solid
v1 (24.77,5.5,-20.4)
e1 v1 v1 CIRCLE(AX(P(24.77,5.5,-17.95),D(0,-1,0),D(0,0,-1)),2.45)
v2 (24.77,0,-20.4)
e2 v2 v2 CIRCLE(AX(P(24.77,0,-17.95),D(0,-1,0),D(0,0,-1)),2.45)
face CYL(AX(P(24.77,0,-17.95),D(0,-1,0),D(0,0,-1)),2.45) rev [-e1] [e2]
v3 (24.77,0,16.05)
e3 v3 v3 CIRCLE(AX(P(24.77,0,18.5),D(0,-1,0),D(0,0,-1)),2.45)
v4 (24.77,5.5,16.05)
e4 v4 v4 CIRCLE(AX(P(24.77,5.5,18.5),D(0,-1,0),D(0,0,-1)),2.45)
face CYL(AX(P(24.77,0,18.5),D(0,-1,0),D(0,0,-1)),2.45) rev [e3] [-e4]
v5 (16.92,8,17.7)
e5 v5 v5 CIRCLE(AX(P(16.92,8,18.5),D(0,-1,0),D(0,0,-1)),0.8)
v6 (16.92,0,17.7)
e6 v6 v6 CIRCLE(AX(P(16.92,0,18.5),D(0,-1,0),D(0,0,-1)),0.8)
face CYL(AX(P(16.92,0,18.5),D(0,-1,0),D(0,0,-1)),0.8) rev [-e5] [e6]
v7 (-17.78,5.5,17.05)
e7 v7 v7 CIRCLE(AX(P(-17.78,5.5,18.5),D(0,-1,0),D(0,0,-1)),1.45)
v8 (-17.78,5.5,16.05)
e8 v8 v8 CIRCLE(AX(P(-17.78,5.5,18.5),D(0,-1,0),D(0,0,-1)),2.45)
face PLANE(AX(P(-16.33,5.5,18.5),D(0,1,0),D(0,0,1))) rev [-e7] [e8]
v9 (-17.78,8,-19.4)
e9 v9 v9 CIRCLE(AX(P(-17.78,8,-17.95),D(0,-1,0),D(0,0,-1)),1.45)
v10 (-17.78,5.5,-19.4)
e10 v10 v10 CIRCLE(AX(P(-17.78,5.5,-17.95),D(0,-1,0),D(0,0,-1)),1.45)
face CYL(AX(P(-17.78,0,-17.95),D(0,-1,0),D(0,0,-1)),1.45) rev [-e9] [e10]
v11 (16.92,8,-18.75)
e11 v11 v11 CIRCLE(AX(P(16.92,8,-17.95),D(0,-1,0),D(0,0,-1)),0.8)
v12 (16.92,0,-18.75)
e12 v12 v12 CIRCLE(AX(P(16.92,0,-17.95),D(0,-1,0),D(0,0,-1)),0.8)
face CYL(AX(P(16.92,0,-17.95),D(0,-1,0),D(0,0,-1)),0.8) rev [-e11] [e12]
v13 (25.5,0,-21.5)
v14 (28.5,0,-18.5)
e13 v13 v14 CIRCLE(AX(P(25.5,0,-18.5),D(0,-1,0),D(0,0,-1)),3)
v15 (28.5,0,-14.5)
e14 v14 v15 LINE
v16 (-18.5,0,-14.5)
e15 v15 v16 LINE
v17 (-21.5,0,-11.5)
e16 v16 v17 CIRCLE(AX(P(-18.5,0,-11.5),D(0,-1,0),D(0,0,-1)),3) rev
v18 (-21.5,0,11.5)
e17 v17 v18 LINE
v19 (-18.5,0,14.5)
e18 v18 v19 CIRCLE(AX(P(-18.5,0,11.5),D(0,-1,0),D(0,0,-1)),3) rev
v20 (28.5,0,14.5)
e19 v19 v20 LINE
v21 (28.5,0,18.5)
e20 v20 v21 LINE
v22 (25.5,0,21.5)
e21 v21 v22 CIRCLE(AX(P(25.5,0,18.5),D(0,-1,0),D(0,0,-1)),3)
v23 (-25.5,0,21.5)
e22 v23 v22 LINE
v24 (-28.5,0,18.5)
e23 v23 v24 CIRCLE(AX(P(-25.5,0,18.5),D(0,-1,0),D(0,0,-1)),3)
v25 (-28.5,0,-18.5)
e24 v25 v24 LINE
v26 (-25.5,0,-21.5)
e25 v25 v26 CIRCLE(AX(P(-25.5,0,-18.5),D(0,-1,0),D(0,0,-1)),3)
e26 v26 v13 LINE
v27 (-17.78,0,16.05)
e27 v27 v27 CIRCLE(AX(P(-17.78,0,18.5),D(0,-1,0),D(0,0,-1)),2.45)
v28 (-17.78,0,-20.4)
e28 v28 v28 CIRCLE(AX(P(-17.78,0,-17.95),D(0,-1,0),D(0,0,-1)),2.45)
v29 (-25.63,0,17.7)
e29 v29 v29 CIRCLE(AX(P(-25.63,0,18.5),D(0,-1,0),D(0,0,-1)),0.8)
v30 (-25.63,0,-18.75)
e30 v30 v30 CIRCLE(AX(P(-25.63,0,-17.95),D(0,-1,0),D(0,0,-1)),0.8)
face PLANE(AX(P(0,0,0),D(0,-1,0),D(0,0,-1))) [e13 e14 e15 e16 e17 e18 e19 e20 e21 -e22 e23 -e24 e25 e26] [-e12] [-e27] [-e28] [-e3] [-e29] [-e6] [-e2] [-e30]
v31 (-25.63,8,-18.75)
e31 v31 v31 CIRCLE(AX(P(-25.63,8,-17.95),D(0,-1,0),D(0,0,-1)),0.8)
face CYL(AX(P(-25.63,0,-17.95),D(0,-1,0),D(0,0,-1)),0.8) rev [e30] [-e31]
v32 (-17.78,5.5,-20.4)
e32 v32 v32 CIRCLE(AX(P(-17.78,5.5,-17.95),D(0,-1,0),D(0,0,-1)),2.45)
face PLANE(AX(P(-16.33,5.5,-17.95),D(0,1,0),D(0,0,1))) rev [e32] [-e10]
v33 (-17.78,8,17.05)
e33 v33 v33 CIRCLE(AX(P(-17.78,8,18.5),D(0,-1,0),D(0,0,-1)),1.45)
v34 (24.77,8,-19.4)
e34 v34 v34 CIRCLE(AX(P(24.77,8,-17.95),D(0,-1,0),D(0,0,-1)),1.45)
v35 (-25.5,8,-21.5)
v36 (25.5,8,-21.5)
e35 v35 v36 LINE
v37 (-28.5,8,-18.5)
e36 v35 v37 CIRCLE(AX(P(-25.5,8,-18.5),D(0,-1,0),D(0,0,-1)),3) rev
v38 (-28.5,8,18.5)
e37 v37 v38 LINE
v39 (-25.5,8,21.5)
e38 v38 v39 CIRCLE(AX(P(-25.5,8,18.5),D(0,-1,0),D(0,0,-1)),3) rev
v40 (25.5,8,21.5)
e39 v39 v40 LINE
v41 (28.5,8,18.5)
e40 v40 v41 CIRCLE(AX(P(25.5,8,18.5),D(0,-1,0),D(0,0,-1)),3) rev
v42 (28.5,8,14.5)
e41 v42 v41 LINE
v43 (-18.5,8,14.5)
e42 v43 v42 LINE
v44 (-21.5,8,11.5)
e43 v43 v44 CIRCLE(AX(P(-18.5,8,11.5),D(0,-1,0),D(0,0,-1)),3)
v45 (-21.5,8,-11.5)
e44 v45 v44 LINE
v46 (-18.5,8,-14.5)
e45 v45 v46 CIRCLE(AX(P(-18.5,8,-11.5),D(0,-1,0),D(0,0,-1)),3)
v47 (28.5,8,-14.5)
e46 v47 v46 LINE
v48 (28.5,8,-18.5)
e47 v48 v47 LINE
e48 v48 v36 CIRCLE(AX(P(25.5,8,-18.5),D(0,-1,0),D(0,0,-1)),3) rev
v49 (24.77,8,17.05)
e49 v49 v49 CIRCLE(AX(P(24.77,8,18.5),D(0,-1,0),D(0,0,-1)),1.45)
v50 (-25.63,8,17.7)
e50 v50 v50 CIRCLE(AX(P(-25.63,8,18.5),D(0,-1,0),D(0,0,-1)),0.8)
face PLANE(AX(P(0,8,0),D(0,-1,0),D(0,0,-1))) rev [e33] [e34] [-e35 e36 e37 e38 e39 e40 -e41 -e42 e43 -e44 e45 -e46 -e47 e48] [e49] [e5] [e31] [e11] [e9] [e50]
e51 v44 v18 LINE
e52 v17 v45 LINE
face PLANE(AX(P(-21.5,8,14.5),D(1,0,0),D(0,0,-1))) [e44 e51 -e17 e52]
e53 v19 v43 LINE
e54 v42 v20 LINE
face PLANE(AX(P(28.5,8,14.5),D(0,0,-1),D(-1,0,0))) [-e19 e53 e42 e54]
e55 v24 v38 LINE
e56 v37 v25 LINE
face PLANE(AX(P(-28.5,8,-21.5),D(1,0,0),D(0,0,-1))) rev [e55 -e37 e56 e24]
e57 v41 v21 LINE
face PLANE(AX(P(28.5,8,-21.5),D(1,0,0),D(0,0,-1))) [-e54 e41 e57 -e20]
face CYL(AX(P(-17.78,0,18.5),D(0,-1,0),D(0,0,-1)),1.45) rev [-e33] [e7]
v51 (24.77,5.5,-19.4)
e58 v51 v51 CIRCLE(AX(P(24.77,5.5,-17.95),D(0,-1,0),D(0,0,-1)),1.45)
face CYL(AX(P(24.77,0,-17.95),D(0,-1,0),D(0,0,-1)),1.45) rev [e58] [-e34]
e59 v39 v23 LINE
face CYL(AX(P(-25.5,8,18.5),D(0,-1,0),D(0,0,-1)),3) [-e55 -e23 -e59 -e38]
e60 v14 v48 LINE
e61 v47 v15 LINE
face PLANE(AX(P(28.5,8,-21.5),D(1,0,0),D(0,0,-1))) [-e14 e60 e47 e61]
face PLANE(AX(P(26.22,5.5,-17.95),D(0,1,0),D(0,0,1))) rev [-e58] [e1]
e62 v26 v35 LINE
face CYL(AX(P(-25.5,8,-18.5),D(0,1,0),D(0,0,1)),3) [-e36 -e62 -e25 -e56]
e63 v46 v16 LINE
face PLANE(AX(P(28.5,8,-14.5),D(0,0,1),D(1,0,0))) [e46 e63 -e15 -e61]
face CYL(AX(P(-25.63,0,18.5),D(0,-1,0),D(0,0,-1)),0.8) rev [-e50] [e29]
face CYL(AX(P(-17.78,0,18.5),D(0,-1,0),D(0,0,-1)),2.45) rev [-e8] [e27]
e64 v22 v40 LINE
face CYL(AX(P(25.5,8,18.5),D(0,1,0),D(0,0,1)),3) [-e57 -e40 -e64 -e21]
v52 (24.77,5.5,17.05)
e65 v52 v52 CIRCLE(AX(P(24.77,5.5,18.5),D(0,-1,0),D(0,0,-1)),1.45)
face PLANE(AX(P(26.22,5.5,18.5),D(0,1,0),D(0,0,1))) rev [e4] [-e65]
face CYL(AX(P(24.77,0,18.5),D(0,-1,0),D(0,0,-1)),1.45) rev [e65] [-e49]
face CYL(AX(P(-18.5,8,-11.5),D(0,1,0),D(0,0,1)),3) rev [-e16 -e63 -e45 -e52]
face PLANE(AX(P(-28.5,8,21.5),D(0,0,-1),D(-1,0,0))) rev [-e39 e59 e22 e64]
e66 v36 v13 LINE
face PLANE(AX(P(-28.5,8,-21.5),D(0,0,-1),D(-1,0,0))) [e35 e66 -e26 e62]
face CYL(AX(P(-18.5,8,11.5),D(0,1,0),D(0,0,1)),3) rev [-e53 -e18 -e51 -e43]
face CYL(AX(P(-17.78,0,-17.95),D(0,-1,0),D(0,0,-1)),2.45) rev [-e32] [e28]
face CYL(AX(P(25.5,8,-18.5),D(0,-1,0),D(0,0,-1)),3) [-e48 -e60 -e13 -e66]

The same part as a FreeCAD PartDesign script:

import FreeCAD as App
import Part
import Sketcher
from FreeCAD import Vector
Q = App.Units.Quantity


def edges_at(feature, points):
    """Names of the edges that pass closest to the given points."""
    edges = feature.Shape.Edges
    near = lambda p: min(range(len(edges)), key=lambda i: edges[i].distToShape(Part.Vertex(*p))[0])
    return sorted({f"Edge{near(p) + 1}" for p in points})


def add_polygon(sketch, points):
    """Adds a closed chain of lines whose ends are joined by coincident constraints."""
    first, n = sketch.GeometryCount, len(points)
    for a, b in zip(points, points[1:] + points[:1]):
        sketch.addGeometry(Part.LineSegment(App.Vector(*a, 0), App.Vector(*b, 0)), False)
    for i in range(n):
        sketch.addConstraint(Sketcher.Constraint("Coincident", first + i, 2, first + (i + 1) % n, 1))

doc = App.newDocument("Part")
params = doc.addObject("Spreadsheet::Sheet", "Params")
for row, (alias, value) in enumerate([
    ("sketch1_width", "57 mm"),
    ("sketch1_height", "43 mm"),
    ("pad1_length", "8 mm"),
    ("sketch2_width", "50 mm"),
    ("sketch2_height", "29 mm"),
    ("pocket1_length", "8 mm"),
    ("fillet_radius", "3 mm"),
    ("sketch3_diameter", "1.6 mm"),
    ("hole_diameter", "1.6 mm"),
    ("sketch4_diameter", "2.9 mm"),
    ("hole2_diameter", "2.9 mm"),
    ("hole2_cbore_diameter", "4.9 mm"),
    ("hole2_cbore_depth", "5.5 mm"),
], start=1):
    params.set(f"A{row}", alias)
    params.set(f"B{row}", "=" + value)
    params.setAlias(f"B{row}", alias)

body = doc.addObject("PartDesign::Body", "Body")

sketch1 = body.newObject("Sketcher::SketchObject", "Sketch")
sketch1.AttachmentSupport = (doc.getObject("XZ_Plane"), [""])
sketch1.MapMode = "FlatFace"
add_polygon(sketch1, [(-28.5, -21.5), (-28.5, 21.5), (28.5, 21.5), (28.5, -21.5)])
sketch1.addConstraint(Sketcher.Constraint("Vertical", 0))
sketch1.addConstraint(Sketcher.Constraint("Horizontal", 1))
sketch1.addConstraint(Sketcher.Constraint("Vertical", 2))
sketch1.addConstraint(Sketcher.Constraint("Horizontal", 3))
sketch1.addConstraint(Sketcher.Constraint("Symmetric", 0, 2, 2, 2, -1, 1))
sketch1.addConstraint(Sketcher.Constraint("DistanceX", 1, 1, 1, 2, Q("57 mm")))
sketch1.addConstraint(Sketcher.Constraint("DistanceY", 0, 1, 0, 2, Q("43 mm")))
sketch1.setExpression("Constraints[9]", "Params.sketch1_width")
sketch1.setExpression("Constraints[10]", "Params.sketch1_height")
pad1 = body.newObject("PartDesign::Pad", "Pad")
pad1.Profile = sketch1
pad1.setExpression("Length", "Params.pad1_length")
pad1.Reversed = True

sketch2 = body.newObject("Sketcher::SketchObject", "Sketch001")
sketch2.AttachmentSupport = (doc.getObject("XZ_Plane"), [""])
sketch2.MapMode = "FlatFace"
add_polygon(sketch2, [(-21.5, -14.5), (-21.5, 14.5), (28.5, 14.5), (28.5, -14.5)])
sketch2.addConstraint(Sketcher.Constraint("Vertical", 0))
sketch2.addConstraint(Sketcher.Constraint("Horizontal", 1))
sketch2.addConstraint(Sketcher.Constraint("Vertical", 2))
sketch2.addConstraint(Sketcher.Constraint("Horizontal", 3))
sketch2.addConstraint(Sketcher.Constraint("DistanceX", 1, 1, 1, 2, Q("50 mm")))
sketch2.addConstraint(Sketcher.Constraint("DistanceY", 0, 1, 0, 2, Q("29 mm")))
sketch2.addConstraint(Sketcher.Constraint("DistanceX", 0, 2, -1, 1, Q("21.5 mm")))
sketch2.addConstraint(Sketcher.Constraint("DistanceY", -1, 1, 0, 2, Q("14.5 mm")))
sketch2.setExpression("Constraints[8]", "Params.sketch2_width")
sketch2.setExpression("Constraints[9]", "Params.sketch2_height")
pocket1 = body.newObject("PartDesign::Pocket", "Pocket")
pocket1.Profile = sketch2
pocket1.setExpression("Length", "Params.pocket1_length")
doc.recompute()

fillet = body.newObject("PartDesign::Fillet", "Fillet")
fillet.Base = (pocket1, edges_at(pocket1, [
    (-21.5, 4, -14.5),
    (-21.5, 4, 14.5),
    (-28.5, 4, -21.5),
    (-28.5, 4, 21.5),
    (28.5, 4, 21.5),
    (28.5, 4, -21.5),
]))
fillet.setExpression("Radius", "Params.fillet_radius")

sketch3 = body.newObject("Sketcher::SketchObject", "Sketch002")
sketch3.AttachmentSupport = (doc.getObject("XZ_Plane"), [""])
sketch3.MapMode = "FlatFace"
sketch3.addGeometry(Part.Circle(Vector(-25.63, -17.95, 0), Vector(0, 0, 1), 0.8), False)
sketch3.addGeometry(Part.Circle(Vector(-25.63, 18.5, 0), Vector(0, 0, 1), 0.8), False)
sketch3.addGeometry(Part.Circle(Vector(16.92, 18.5, 0), Vector(0, 0, 1), 0.8), False)
sketch3.addGeometry(Part.Circle(Vector(16.92, -17.95, 0), Vector(0, 0, 1), 0.8), False)
sketch3.addConstraint(Sketcher.Constraint("Equal", 0, 1))
sketch3.addConstraint(Sketcher.Constraint("Equal", 1, 2))
sketch3.addConstraint(Sketcher.Constraint("Equal", 2, 3))
sketch3.addConstraint(Sketcher.Constraint("Horizontal", 1, 3, 2, 3))
sketch3.addConstraint(Sketcher.Constraint("Horizontal", 0, 3, 3, 3))
sketch3.addConstraint(Sketcher.Constraint("Vertical", 0, 3, 1, 3))
sketch3.addConstraint(Sketcher.Constraint("Vertical", 2, 3, 3, 3))
sketch3.addConstraint(Sketcher.Constraint("Diameter", 0, Q("1.6 mm")))
sketch3.addConstraint(Sketcher.Constraint("DistanceY", -1, 1, 1, 3, Q("18.5 mm")))
sketch3.addConstraint(Sketcher.Constraint("DistanceX", 0, 3, -1, 1, Q("25.63 mm")))
sketch3.addConstraint(Sketcher.Constraint("DistanceY", 0, 3, -1, 1, Q("17.95 mm")))
sketch3.addConstraint(Sketcher.Constraint("DistanceX", -1, 1, 2, 3, Q("16.92 mm")))
sketch3.setExpression("Constraints[7]", "Params.sketch3_diameter")
doc.recompute()
hole = body.newObject("PartDesign::Hole", "Hole")
hole.Profile = sketch3
hole.ThreadType = "None"
hole.setExpression("Diameter", "Params.hole_diameter")
hole.DepthType = "ThroughAll"

sketch4 = body.newObject("Sketcher::SketchObject", "Sketch003")
sketch4.AttachmentSupport = (doc.getObject("XZ_Plane"), [""])
sketch4.MapMode = "FlatFace"
sketch4.addGeometry(Part.Circle(Vector(24.77, -17.95, 0), Vector(0, 0, 1), 1.45), False)
sketch4.addGeometry(Part.Circle(Vector(-17.78, -17.95, 0), Vector(0, 0, 1), 1.45), False)
sketch4.addGeometry(Part.Circle(Vector(-17.78, 18.5, 0), Vector(0, 0, 1), 1.45), False)
sketch4.addGeometry(Part.Circle(Vector(24.77, 18.5, 0), Vector(0, 0, 1), 1.45), False)
sketch4.addConstraint(Sketcher.Constraint("Equal", 0, 1))
sketch4.addConstraint(Sketcher.Constraint("Equal", 1, 2))
sketch4.addConstraint(Sketcher.Constraint("Equal", 2, 3))
sketch4.addConstraint(Sketcher.Constraint("Horizontal", 0, 3, 1, 3))
sketch4.addConstraint(Sketcher.Constraint("Horizontal", 2, 3, 3, 3))
sketch4.addConstraint(Sketcher.Constraint("Vertical", 1, 3, 2, 3))
sketch4.addConstraint(Sketcher.Constraint("Vertical", 0, 3, 3, 3))
sketch4.addConstraint(Sketcher.Constraint("Diameter", 0, Q("2.9 mm")))
sketch4.addConstraint(Sketcher.Constraint("DistanceY", -1, 1, 2, 3, Q("18.5 mm")))
sketch4.addConstraint(Sketcher.Constraint("DistanceX", -1, 1, 0, 3, Q("24.77 mm")))
sketch4.addConstraint(Sketcher.Constraint("DistanceY", 0, 3, -1, 1, Q("17.95 mm")))
sketch4.addConstraint(Sketcher.Constraint("DistanceX", 1, 3, -1, 1, Q("17.78 mm")))
sketch4.setExpression("Constraints[7]", "Params.sketch4_diameter")
doc.recompute()
hole2 = body.newObject("PartDesign::Hole", "Hole001")
hole2.Profile = sketch4
hole2.ThreadType = "None"
hole2.setExpression("Diameter", "Params.hole2_diameter")
hole2.DepthType = "ThroughAll"
hole2.HoleCutType = "Counterbore"
hole2.setExpression("HoleCutDiameter", "Params.hole2_cbore_diameter")
hole2.setExpression("HoleCutDepth", "Params.hole2_cbore_depth")

doc.recompute()
